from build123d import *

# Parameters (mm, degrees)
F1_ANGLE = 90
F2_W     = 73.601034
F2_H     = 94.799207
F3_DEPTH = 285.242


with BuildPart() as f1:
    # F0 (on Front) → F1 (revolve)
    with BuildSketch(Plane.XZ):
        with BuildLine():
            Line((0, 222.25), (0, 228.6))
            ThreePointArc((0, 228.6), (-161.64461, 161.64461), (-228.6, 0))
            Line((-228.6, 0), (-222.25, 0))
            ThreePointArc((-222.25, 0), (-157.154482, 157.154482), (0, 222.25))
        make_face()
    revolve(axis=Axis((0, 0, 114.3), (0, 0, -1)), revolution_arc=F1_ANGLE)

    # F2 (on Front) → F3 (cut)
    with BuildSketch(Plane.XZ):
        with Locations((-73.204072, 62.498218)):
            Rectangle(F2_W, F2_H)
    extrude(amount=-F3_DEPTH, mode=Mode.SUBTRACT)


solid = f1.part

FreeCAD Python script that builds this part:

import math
import FreeCAD as App
import Part
import Sketcher
Q = App.Units.Quantity


def add_polygon(sketch, points):
    """Adds a closed chain of lines whose ends are joined by coincident constraints."""
    first, n = sketch.GeometryCount, len(points)
    for a, b in zip(points, points[1:] + points[:1]):
        sketch.addGeometry(Part.LineSegment(App.Vector(*a, 0), App.Vector(*b, 0)), False)
    for i in range(n):
        sketch.addConstraint(Sketcher.Constraint("Coincident", first + i, 2, first + (i + 1) % n, 1))

doc = App.newDocument("Part")
body = doc.addObject("PartDesign::Body", "Body")

# Sketch on XZ plane
sketch1 = body.newObject("Sketcher::SketchObject", "Sketch")
sketch1.AttachmentSupport = (doc.getObject("XZ_Plane"), [""])
sketch1.MapMode = "FlatFace"
sketch1.addGeometry(Part.LineSegment(App.Vector(0, 222, 0), App.Vector(0, 229, 0)), False)
sketch1.addGeometry(Part.ArcOfCircle(Part.Circle(App.Vector(0, 0, 0), App.Vector(0, 0, 1), 229), math.radians(90), math.radians(180)), False)
sketch1.addGeometry(Part.LineSegment(App.Vector(-229, 0, 0), App.Vector(-222, 0, 0)), False)
sketch1.addGeometry(Part.ArcOfCircle(Part.Circle(App.Vector(0, 0, 0), App.Vector(0, 0, 1), 222), math.radians(90), math.radians(180)), False)
sketch1.addConstraint(Sketcher.Constraint("Coincident", 0, 2, 1, 1))
sketch1.addConstraint(Sketcher.Constraint("Coincident", 1, 2, 2, 1))
sketch1.addConstraint(Sketcher.Constraint("Coincident", 2, 2, 3, 2))
sketch1.addConstraint(Sketcher.Constraint("Coincident", 3, 1, 0, 1))
sketch1.addConstraint(Sketcher.Constraint("Vertical", 0))
sketch1.addConstraint(Sketcher.Constraint("Horizontal", 2))
sketch1.addConstraint(Sketcher.Constraint("Coincident", 1, 3, -1, 1))
sketch1.addConstraint(Sketcher.Constraint("Coincident", 3, 3, -1, 1))
sketch1.addConstraint(Sketcher.Constraint("PointOnObject", 0, 2, -2))
sketch1.addConstraint(Sketcher.Constraint("PointOnObject", 1, 2, -1))
sketch1.addConstraint(Sketcher.Constraint("Radius", 1, Q("9 in")))
sketch1.addConstraint(Sketcher.Constraint("Radius", 3, Q("8.75 in")))
revolution = body.newObject("PartDesign::Revolution", "Revolution")
revolution.Profile = sketch1
revolution.ReferenceAxis = (sketch1, ["V_Axis"])
revolution.Angle = 90
revolution.Reversed = True

# Sketch on XZ plane
sketch2 = body.newObject("Sketcher::SketchObject", "Sketch001")
sketch2.AttachmentSupport = (doc.getObject("XZ_Plane"), [""])
sketch2.MapMode = "FlatFace"
add_polygon(sketch2, [(-110, 110), (-110, 15), (-36, 15), (-36, 110)])  # lines 0-3
sketch2.addConstraint(Sketcher.Constraint("Vertical", 0))
sketch2.addConstraint(Sketcher.Constraint("Horizontal", 1))
sketch2.addConstraint(Sketcher.Constraint("Vertical", 2))
sketch2.addConstraint(Sketcher.Constraint("Horizontal", 3))
sketch2.addConstraint(Sketcher.Constraint("DistanceX", 1, 1, 1, 2, 73.601034))
sketch2.addConstraint(Sketcher.Constraint("DistanceY", 0, 2, 0, 1, 94.799207))
sketch2.addConstraint(Sketcher.Constraint("DistanceX", 0, 2, -1, 1, 110.004589))
sketch2.addConstraint(Sketcher.Constraint("DistanceY", -1, 1, 2, 2, 109.897822))
pocket1 = body.newObject("PartDesign::Pocket", "Pocket")
pocket1.Profile = sketch2
pocket1.Length = Q("11.23 in")

doc.recompute()
